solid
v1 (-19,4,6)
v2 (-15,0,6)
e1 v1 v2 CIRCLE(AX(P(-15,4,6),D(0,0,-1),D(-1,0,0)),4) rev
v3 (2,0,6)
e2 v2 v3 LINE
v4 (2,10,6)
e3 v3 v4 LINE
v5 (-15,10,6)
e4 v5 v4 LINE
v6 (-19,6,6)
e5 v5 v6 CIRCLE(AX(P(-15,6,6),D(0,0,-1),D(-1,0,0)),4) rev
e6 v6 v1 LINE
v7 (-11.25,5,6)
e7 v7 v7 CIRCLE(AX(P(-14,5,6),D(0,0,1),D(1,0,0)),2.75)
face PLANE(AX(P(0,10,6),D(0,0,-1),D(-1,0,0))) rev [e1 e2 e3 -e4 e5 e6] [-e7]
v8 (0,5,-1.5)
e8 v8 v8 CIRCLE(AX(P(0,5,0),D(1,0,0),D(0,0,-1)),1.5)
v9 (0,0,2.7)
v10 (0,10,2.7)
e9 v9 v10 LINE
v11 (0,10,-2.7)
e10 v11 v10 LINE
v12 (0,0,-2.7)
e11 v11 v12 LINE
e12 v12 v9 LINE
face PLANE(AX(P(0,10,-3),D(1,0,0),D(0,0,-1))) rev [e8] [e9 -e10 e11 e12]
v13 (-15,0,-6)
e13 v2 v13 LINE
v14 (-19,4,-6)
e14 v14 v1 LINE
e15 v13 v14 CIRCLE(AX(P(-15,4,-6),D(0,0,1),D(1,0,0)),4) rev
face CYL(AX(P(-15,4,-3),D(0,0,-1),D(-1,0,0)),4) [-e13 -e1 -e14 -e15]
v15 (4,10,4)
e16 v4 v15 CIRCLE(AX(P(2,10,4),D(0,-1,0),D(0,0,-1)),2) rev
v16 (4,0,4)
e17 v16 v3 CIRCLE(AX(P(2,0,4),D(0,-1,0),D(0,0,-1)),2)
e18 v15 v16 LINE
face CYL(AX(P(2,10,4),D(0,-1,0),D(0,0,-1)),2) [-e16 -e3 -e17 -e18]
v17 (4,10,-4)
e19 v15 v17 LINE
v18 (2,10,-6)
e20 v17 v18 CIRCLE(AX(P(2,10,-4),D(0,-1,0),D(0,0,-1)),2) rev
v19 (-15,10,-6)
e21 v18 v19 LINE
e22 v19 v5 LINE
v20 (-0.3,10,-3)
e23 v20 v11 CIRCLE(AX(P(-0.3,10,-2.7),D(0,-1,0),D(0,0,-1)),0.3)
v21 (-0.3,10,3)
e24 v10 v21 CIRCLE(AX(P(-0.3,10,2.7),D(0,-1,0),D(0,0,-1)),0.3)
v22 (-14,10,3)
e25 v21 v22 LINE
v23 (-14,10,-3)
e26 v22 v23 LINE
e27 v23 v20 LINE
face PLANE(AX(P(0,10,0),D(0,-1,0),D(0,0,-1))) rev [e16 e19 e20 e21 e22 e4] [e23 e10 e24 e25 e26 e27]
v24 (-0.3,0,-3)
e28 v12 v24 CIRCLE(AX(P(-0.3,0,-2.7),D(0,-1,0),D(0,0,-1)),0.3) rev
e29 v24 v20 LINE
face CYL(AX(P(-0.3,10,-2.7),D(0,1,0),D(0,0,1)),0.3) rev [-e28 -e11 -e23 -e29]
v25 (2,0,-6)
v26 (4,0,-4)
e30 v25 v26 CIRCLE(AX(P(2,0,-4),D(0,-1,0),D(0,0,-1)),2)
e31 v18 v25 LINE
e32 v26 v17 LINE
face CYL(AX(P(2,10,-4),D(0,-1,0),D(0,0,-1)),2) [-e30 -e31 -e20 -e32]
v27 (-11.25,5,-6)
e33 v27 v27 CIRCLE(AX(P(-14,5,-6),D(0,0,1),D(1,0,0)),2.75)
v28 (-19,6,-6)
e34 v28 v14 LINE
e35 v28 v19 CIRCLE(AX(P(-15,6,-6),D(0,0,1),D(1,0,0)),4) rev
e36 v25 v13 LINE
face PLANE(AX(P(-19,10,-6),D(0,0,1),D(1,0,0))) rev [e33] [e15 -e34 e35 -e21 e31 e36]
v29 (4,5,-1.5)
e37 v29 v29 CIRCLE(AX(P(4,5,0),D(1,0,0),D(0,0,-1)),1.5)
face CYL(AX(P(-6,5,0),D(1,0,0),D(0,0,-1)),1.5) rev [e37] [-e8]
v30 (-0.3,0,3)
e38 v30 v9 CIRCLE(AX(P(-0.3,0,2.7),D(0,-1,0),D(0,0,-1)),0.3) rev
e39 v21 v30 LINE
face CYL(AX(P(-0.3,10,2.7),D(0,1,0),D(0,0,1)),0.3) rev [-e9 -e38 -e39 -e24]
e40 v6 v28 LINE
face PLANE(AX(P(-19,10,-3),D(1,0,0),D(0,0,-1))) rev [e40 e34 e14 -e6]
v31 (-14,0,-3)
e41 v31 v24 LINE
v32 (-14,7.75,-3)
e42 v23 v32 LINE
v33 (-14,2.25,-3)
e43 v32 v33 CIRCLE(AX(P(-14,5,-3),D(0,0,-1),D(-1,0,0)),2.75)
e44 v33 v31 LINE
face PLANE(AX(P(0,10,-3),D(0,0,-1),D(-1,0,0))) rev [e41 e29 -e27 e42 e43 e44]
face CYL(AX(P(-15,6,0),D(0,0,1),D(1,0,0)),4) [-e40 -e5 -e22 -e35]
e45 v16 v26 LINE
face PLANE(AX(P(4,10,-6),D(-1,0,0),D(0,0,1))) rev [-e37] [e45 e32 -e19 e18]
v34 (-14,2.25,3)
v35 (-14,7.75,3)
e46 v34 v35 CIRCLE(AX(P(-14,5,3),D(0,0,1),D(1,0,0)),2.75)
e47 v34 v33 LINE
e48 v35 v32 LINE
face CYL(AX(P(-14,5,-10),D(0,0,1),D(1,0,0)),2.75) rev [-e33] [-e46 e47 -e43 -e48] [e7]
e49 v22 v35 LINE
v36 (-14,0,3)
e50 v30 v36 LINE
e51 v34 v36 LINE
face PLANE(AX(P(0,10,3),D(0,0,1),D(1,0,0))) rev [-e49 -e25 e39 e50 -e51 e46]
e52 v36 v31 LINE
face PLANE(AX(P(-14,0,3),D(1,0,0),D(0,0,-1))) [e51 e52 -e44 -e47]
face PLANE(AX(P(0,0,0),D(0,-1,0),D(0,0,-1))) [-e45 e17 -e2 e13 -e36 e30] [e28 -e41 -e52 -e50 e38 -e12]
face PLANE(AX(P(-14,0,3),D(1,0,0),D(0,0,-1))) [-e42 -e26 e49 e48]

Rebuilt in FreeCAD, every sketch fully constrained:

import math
import FreeCAD as App
import Part
import Sketcher

V = App.Vector


def edges_at(feature, points):
    """Names of the edges that pass closest to the given points."""
    edges = feature.Shape.Edges
    near = lambda p: min(range(len(edges)), key=lambda i: edges[i].distToShape(Part.Vertex(*p))[0])
    return sorted({f"Edge{near(p) + 1}" for p in points})

doc = App.newDocument("Part")
body = doc.addObject("PartDesign::Body", "Body")

# Sketch on XZ plane
sketch1 = body.newObject("Sketcher::SketchObject", "Sketch")
sketch1.AttachmentSupport = (doc.getObject("XZ_Plane"), [""])
sketch1.MapMode = "FlatFace"
sketch1.addGeometry(Part.LineSegment(V(-19, -3, 0), V(0, -3, 0)), False)
sketch1.addGeometry(Part.LineSegment(V(0, -3, 0), V(0, 3, 0)), False)
sketch1.addGeometry(Part.LineSegment(V(0, 3, 0), V(-19, 3, 0)), False)
sketch1.addGeometry(Part.LineSegment(V(-19, 3, 0), V(-19, 6, 0)), False)
sketch1.addGeometry(Part.LineSegment(V(-19, 6, 0), V(4, 6, 0)), False)
sketch1.addGeometry(Part.LineSegment(V(4, 6, 0), V(4, -6, 0)), False)
sketch1.addGeometry(Part.LineSegment(V(4, -6, 0), V(-19, -6, 0)), False)
sketch1.addGeometry(Part.LineSegment(V(-19, -6, 0), V(-19, -3, 0)), False)
sketch1.addConstraint(Sketcher.Constraint("Coincident", 0, 2, 1, 1))
sketch1.addConstraint(Sketcher.Constraint("Coincident", 1, 2, 2, 1))
sketch1.addConstraint(Sketcher.Constraint("Coincident", 2, 2, 3, 1))
sketch1.addConstraint(Sketcher.Constraint("Coincident", 3, 2, 4, 1))
sketch1.addConstraint(Sketcher.Constraint("Coincident", 4, 2, 5, 1))
sketch1.addConstraint(Sketcher.Constraint("Coincident", 5, 2, 6, 1))
sketch1.addConstraint(Sketcher.Constraint("Coincident", 6, 2, 7, 1))
sketch1.addConstraint(Sketcher.Constraint("Coincident", 7, 2, 0, 1))
sketch1.addConstraint(Sketcher.Constraint("Horizontal", 0))
sketch1.addConstraint(Sketcher.Constraint("Vertical", 1))
sketch1.addConstraint(Sketcher.Constraint("Horizontal", 2))
sketch1.addConstraint(Sketcher.Constraint("Vertical", 3))
sketch1.addConstraint(Sketcher.Constraint("Horizontal", 4))
sketch1.addConstraint(Sketcher.Constraint("Vertical", 5))
sketch1.addConstraint(Sketcher.Constraint("Horizontal", 6))
sketch1.addConstraint(Sketcher.Constraint("Vertical", 7))
sketch1.addConstraint(Sketcher.Constraint("Symmetric", 0, 2, 1, 2, -1, 1))
sketch1.addConstraint(Sketcher.Constraint("Symmetric", 3, 2, 6, 2, -1))
sketch1.addConstraint(Sketcher.Constraint("DistanceX", 0, 1, 0, 2, 19.0))
sketch1.addConstraint(Sketcher.Constraint("DistanceX", 4, 1, 4, 2, 23.0))
sketch1.addConstraint(Sketcher.Constraint("DistanceY", 1, 1, 1, 2, 6.0))
sketch1.addConstraint(Sketcher.Constraint("DistanceY", 3, 1, 3, 2, 3.0))
pad1 = body.newObject("PartDesign::Pad", "Pad")
pad1.Profile = sketch1
pad1.Length = 10
pad1.Reversed = True

# Sketch on XY plane
sketch2 = body.newObject("Sketcher::SketchObject", "Sketch001")
sketch2.AttachmentSupport = (doc.getObject("XY_Plane"), [""])
sketch2.MapMode = "FlatFace"
sketch2.AttachmentOffset = App.Placement(V(0, 0, 6), App.Rotation())
sketch2.addGeometry(Part.Circle(V(-14, 5, 0), V(0, 0, 1), 2.8), False)
sketch2.addConstraint(Sketcher.Constraint("Diameter", 0, 5.5))
sketch2.addConstraint(Sketcher.Constraint("DistanceX", 0, 3, -1, 1, 14.0))
sketch2.addConstraint(Sketcher.Constraint("DistanceY", -1, 1, 0, 3, 5.0))
pocket1 = body.newObject("PartDesign::Pocket", "Pocket")
pocket1.Profile = sketch2
pocket1.Length = 16
doc.recompute()

fillet = body.newObject("PartDesign::Fillet", "Fillet")
fillet.Base = (pocket1, edges_at(pocket1, [
    (-19, 0, -4.5),
    (-19, 10, 4.5),
    (-19, 0, 4.5),
    (-19, 10, -4.5),
]))
fillet.Radius = 4

# Sketch on YZ plane
sketch3 = body.newObject("Sketcher::SketchObject", "Sketch002")
sketch3.AttachmentSupport = (doc.getObject("YZ_Plane"), [""])
sketch3.MapMode = "FlatFace"
sketch3.AttachmentOffset = App.Placement(V(0, 0, 4), App.Rotation())
sketch3.addGeometry(Part.Circle(V(5, 0, 0), V(0, 0, 1), 1.5), False)
sketch3.addConstraint(Sketcher.Constraint("PointOnObject", 0, 3, -1))
sketch3.addConstraint(Sketcher.Constraint("Diameter", 0, 3.0))
sketch3.addConstraint(Sketcher.Constraint("DistanceX", -1, 1, 0, 3, 5.0))
pocket2 = body.newObject("PartDesign::Pocket", "Pocket001")
pocket2.Profile = sketch3
pocket2.Length = 10
doc.recompute()

fillet2 = body.newObject("PartDesign::Fillet", "Fillet001")
fillet2.Base = (pocket2, edges_at(pocket2, [(4, 5, -6), (4, 5, 6)]))
fillet2.Radius = 2
doc.recompute()

fillet3 = body.newObject("PartDesign::Fillet", "Fillet002")
fillet3.Base = (fillet2, edges_at(fillet2, [(0, 5, -3), (0, 5, 3)]))
fillet3.Radius = 0.3

# Sketch on XY plane
sketch4 = body.newObject("Sketcher::SketchObject", "Sketch003")
sketch4.AttachmentSupport = (doc.getObject("XY_Plane"), [""])
sketch4.MapMode = "FlatFace"
sketch4.AttachmentOffset = App.Placement(V(0, 0, -3), App.Rotation())
sketch4.addGeometry(Part.ArcOfCircle(Part.Circle(V(-15, 6, 0), V(0, 0, 1), 4), math.radians(90), math.radians(180)), False)
sketch4.addGeometry(Part.LineSegment(V(-19, 6, 0), V(-19, 4, 0)), False)
sketch4.addGeometry(Part.ArcOfCircle(Part.Circle(V(-15, 4, 0), V(0, 0, 1), 4), math.radians(180), math.radians(270)), False)
sketch4.addGeometry(Part.LineSegment(V(-15, 0, 0), V(-14, 0, 0)), False)
sketch4.addGeometry(Part.LineSegment(V(-14, 0, 0), V(-14, 2.2, 0)), False)
sketch4.addGeometry(Part.ArcOfCircle(Part.Circle(V(-14, 5, 0), V(0, 0, 1), 2.8), math.radians(90), math.radians(270)), False)
sketch4.addGeometry(Part.LineSegment(V(-14, 7.8, 0), V(-14, 10, 0)), False)
sketch4.addGeometry(Part.LineSegment(V(-14, 10, 0), V(-15, 10, 0)), False)
sketch4.addConstraint(Sketcher.Constraint("Tangent", 0, 2, 1, 1))
sketch4.addConstraint(Sketcher.Constraint("Tangent", 1, 2, 2, 1))
sketch4.addConstraint(Sketcher.Constraint("Tangent", 2, 2, 3, 1))
sketch4.addConstraint(Sketcher.Constraint("Coincident", 3, 2, 4, 1))
sketch4.addConstraint(Sketcher.Constraint("Coincident", 4, 2, 5, 2))
sketch4.addConstraint(Sketcher.Constraint("Coincident", 5, 1, 6, 1))
sketch4.addConstraint(Sketcher.Constraint("Coincident", 6, 2, 7, 1))
sketch4.addConstraint(Sketcher.Constraint("Tangent", 7, 2, 0, 1))
sketch4.addConstraint(Sketcher.Constraint("Vertical", 1))
sketch4.addConstraint(Sketcher.Constraint("Horizontal", 3))
sketch4.addConstraint(Sketcher.Constraint("Vertical", 4))
sketch4.addConstraint(Sketcher.Constraint("Vertical", 6))
sketch4.addConstraint(Sketcher.Constraint("Horizontal", 7))
sketch4.addConstraint(Sketcher.Constraint("Equal", 0, 2))
sketch4.addConstraint(Sketcher.Constraint("PointOnObject", 2, 2, -1))
sketch4.addConstraint(Sketcher.Constraint("Vertical", 5, 3, 3, 2))
sketch4.addConstraint(Sketcher.Constraint("Vertical", 4, 2, 5, 1))
sketch4.addConstraint(Sketcher.Constraint("Equal", 4, 6))
sketch4.addConstraint(Sketcher.Constraint("Radius", 0, 4.0))
sketch4.addConstraint(Sketcher.Constraint("DistanceX", 3, 1, 3, 2, 1.0))
sketch4.addConstraint(Sketcher.Constraint("DistanceY", 1, 2, 1, 1, 2.0))
sketch4.addConstraint(Sketcher.Constraint("Radius", 5, 2.75))
sketch4.addConstraint(Sketcher.Constraint("DistanceX", 0, 3, -1, 1, 15.0))
pad2 = body.newObject("PartDesign::Pad", "Pad001")
pad2.Profile = sketch4
pad2.Length = 6

doc.recompute()
